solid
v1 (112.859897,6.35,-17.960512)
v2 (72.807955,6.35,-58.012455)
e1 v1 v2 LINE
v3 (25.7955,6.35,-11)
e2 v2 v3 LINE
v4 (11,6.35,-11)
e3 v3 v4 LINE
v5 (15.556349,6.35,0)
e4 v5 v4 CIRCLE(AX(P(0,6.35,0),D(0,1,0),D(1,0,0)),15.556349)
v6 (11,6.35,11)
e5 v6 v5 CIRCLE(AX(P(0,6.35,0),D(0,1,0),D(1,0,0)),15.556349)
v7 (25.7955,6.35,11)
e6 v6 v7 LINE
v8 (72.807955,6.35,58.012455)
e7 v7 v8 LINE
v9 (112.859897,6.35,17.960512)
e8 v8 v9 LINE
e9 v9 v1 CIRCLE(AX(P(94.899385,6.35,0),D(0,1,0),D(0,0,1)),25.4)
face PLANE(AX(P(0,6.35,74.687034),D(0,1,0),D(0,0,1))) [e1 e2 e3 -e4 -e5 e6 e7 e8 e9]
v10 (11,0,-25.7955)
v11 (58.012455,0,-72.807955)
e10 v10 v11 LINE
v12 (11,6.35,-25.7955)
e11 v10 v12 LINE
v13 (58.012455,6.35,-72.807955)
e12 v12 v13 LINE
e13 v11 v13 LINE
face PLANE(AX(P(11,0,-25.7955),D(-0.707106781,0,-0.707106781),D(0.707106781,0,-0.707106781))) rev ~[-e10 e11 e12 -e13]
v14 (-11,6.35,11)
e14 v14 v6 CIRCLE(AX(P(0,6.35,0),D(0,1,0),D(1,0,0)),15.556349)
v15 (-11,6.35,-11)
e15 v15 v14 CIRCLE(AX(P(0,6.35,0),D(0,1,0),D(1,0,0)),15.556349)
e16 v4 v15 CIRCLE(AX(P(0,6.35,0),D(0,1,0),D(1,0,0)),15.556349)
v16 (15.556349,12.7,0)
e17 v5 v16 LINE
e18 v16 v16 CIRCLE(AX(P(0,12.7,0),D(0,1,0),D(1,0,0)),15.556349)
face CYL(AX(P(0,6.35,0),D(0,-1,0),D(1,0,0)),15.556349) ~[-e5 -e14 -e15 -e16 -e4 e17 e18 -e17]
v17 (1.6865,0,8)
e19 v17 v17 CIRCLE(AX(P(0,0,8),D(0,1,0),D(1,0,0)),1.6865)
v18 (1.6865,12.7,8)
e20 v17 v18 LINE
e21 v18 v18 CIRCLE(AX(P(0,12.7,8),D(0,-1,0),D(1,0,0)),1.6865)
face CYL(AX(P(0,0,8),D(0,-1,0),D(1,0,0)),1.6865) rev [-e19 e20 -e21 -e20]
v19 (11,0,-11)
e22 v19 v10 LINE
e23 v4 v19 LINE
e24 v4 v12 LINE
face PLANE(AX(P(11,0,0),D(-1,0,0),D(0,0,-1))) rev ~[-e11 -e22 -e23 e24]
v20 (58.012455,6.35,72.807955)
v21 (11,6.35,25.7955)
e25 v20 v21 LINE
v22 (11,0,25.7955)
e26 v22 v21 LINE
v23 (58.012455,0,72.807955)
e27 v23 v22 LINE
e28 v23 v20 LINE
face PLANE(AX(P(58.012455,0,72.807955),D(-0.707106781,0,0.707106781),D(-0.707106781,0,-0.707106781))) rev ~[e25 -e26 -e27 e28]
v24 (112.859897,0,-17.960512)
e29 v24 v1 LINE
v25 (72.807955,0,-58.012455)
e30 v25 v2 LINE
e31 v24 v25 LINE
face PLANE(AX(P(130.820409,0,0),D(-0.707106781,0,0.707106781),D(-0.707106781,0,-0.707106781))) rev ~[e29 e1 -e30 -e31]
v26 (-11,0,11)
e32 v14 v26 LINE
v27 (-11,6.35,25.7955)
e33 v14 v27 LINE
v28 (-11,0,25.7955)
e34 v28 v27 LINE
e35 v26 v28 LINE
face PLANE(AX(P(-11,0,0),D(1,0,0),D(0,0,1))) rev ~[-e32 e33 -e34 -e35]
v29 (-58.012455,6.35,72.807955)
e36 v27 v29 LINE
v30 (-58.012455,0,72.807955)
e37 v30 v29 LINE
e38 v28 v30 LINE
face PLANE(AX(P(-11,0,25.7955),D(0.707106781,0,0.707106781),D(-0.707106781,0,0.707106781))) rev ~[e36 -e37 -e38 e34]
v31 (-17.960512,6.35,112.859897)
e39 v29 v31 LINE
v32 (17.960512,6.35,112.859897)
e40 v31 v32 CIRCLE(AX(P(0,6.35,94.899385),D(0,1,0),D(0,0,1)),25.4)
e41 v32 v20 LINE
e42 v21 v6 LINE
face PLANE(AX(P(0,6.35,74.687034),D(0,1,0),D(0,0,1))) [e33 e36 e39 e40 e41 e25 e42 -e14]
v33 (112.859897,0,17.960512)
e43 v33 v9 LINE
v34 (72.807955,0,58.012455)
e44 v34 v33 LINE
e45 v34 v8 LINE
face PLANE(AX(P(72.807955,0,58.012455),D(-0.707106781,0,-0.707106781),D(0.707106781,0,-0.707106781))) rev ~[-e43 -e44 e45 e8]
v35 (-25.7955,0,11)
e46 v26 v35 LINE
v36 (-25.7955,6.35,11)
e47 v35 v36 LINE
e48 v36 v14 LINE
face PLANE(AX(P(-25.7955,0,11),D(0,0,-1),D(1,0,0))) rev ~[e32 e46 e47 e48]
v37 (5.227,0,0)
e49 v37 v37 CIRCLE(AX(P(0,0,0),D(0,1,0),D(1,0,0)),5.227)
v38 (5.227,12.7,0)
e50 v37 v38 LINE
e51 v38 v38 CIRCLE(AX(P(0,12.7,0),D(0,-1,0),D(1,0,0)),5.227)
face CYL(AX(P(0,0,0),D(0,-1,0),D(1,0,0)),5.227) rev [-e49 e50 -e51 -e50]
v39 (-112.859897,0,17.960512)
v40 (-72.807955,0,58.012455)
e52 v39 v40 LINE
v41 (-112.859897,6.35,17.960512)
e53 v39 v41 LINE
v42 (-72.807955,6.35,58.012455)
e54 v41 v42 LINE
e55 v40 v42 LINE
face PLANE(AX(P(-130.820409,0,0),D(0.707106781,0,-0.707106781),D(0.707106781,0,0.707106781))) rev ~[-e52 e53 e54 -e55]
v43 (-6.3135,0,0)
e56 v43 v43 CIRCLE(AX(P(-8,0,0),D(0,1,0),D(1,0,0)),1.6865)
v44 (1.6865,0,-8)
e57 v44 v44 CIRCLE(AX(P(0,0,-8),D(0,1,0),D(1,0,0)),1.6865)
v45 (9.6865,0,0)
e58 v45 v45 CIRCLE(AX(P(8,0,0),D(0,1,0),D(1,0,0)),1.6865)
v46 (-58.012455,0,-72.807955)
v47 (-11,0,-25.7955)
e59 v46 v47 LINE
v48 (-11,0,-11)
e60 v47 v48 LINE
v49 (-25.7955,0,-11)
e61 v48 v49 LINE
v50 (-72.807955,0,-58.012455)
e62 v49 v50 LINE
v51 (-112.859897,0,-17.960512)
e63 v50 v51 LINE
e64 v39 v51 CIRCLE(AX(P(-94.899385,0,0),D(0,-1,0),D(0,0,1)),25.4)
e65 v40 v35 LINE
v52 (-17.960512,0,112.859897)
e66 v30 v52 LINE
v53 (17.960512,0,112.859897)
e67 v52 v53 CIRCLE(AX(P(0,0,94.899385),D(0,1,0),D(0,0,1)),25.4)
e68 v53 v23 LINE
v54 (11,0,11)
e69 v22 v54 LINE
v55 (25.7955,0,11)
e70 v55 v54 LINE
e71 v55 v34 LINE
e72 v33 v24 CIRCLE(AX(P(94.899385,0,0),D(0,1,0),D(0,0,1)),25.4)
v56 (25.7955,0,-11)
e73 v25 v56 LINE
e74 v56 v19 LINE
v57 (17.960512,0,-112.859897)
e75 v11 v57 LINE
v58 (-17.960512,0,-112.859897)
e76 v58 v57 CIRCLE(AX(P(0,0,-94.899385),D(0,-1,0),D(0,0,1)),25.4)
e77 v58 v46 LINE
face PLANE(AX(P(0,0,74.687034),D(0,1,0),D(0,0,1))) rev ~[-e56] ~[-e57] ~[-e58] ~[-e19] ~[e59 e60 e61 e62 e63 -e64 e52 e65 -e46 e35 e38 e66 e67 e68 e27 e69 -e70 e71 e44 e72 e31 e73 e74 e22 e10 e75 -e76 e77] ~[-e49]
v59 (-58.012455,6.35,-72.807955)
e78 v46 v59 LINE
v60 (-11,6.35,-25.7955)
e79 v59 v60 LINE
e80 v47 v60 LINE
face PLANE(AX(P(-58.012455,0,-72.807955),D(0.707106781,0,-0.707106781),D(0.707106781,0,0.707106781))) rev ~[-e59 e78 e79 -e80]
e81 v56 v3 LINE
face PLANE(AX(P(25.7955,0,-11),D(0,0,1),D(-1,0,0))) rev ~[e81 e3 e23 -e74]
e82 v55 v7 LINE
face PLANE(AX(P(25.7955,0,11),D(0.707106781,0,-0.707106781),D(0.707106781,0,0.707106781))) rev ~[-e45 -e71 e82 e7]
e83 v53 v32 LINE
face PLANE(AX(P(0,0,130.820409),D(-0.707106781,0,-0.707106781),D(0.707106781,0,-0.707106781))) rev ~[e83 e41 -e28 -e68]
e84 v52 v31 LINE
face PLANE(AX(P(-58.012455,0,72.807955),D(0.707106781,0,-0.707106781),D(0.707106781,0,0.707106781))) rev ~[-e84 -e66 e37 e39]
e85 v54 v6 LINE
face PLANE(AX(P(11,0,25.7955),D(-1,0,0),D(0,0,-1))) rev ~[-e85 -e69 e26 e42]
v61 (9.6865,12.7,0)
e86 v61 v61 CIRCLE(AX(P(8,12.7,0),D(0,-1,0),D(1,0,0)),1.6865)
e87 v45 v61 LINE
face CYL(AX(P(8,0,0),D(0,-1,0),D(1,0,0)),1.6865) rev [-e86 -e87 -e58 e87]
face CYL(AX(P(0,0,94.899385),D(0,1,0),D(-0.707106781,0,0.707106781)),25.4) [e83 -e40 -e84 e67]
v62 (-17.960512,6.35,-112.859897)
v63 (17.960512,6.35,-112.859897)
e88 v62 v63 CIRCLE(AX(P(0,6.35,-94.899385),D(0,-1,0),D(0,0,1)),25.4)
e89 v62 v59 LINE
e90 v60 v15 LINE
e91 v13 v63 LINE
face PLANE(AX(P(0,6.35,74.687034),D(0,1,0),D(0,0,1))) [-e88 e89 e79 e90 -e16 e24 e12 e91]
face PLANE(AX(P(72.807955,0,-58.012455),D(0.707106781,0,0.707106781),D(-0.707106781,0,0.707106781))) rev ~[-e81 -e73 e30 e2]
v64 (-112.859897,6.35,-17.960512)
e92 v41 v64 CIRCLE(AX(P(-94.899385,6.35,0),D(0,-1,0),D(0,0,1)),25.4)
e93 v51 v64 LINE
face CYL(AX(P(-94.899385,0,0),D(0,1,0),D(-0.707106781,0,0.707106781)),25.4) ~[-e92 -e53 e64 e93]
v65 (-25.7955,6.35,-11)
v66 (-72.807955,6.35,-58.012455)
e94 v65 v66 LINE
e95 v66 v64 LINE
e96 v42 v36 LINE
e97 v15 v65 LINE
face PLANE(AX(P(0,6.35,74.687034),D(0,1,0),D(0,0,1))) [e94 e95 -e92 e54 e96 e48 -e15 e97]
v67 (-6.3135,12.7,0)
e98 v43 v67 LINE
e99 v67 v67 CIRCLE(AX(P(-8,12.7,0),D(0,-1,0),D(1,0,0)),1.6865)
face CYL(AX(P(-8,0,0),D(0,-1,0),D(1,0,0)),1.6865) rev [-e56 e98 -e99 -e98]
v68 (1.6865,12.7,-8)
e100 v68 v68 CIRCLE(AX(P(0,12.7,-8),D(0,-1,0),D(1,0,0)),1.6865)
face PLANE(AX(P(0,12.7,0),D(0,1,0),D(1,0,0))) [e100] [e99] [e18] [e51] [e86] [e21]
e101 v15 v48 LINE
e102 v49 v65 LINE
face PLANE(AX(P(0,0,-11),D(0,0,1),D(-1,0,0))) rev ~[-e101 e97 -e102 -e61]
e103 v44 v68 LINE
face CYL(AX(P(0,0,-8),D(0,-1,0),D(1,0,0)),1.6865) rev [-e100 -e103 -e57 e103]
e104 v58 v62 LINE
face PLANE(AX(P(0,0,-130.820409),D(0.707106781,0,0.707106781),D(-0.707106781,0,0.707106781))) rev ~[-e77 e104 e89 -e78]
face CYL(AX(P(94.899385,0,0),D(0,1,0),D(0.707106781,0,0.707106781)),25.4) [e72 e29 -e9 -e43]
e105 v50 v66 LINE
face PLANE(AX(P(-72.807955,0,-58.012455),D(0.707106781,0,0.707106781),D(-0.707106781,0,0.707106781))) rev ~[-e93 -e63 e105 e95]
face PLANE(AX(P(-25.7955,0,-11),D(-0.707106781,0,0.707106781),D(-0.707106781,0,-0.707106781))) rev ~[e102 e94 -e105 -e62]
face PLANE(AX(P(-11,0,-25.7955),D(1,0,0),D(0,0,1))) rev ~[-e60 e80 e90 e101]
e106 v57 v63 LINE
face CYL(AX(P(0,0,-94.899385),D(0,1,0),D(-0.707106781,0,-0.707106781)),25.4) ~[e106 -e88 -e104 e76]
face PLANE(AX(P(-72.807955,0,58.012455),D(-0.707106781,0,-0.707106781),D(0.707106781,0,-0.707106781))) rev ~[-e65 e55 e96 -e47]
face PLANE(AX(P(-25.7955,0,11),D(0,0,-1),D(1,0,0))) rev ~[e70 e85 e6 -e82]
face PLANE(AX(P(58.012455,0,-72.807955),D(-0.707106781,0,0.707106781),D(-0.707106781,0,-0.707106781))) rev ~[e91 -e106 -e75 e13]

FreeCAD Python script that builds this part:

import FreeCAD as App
import Part
import Sketcher
Q = App.Units.Quantity


def edges_at(feature, points):
    """Names of the edges that pass closest to the given points."""
    edges = feature.Shape.Edges
    near = lambda p: min(range(len(edges)), key=lambda i: edges[i].distToShape(Part.Vertex(*p))[0])
    return sorted({f"Edge{near(p) + 1}" for p in points})

doc = App.newDocument("Part")
params = doc.addObject("Spreadsheet::Sheet", "Params")
for row, (alias, value) in enumerate([
    ("sketch1_length", "3.23 in"),
    ("pad1_length", "0.25 in"),
    ("fillet_radius", "1 in"),
    ("fillet2_radius", "1 in"),
    ("pad2_length", "0.25 in"),
], start=1):
    params.set(f"A{row}", alias)
    params.set(f"B{row}", "=" + value)
    params.setAlias(f"B{row}", alias)

body = doc.addObject("PartDesign::Body", "Body")

# Sketch on XZ plane
sketch1 = doc.addObject("Sketcher::SketchObject", "Sketch")
body.addObject(sketch1)
sketch1.AttachmentSupport = (doc.XZ_Plane, [""])
sketch1.MapMode = "FlatFace"
sketch1.addGeometry([
    Part.LineSegment(App.Vector(73, 58, 0), App.Vector(131, 0, 0)),  # 0
    Part.LineSegment(App.Vector(131, 0, 0), App.Vector(73, -58, 0)),  # 1
    Part.LineSegment(App.Vector(73, -58, 0), App.Vector(26, -11, 0)),  # 2
    Part.LineSegment(App.Vector(26, -11, 0), App.Vector(0, -11, 0)),  # 3
    Part.LineSegment(App.Vector(0, -11, 0), App.Vector(0, 11, 0)),  # 4
    Part.LineSegment(App.Vector(0, 11, 0), App.Vector(26, 11, 0)),  # 5
    Part.LineSegment(App.Vector(26, 11, 0), App.Vector(73, 58, 0)),  # 6
], False)
sketch1.addConstraint([
    Sketcher.Constraint("Coincident", 0, 2, 1, 1),
    Sketcher.Constraint("Coincident", 1, 2, 2, 1),
    Sketcher.Constraint("Coincident", 2, 2, 3, 1),
    Sketcher.Constraint("Coincident", 3, 2, 4, 1),
    Sketcher.Constraint("Coincident", 4, 2, 5, 1),
    Sketcher.Constraint("Coincident", 5, 2, 6, 1),
    Sketcher.Constraint("Coincident", 6, 2, 0, 1),
    Sketcher.Constraint("Horizontal", 3),
    Sketcher.Constraint("Vertical", 4),
    Sketcher.Constraint("Horizontal", 5),
    Sketcher.Constraint("Symmetric", 3, 2, 4, 2, -1, 1),
    Sketcher.Constraint("Symmetric", 1, 2, 6, 2, -1),
    Sketcher.Constraint("PointOnObject", 0, 2, -1),
    Sketcher.Constraint("Perpendicular", 0, 1),
    Sketcher.Constraint("Perpendicular", 1, 2),
    Sketcher.Constraint("Perpendicular", 2, 6),
    Sketcher.Constraint("Distance", 0, Q("3.23 in")),
    Sketcher.Constraint("DistanceX", 3, 2, 3, 1, 25.7955),
    Sketcher.Constraint("DistanceY", 4, 1, 4, 2, 22.0),
])
sketch1.setExpression("Constraints[16]", "Params.sketch1_length")
pad1 = doc.addObject("PartDesign::Pad", "Pad")
body.addObject(pad1)
pad1.Profile = sketch1
pad1.setExpression("Length", "Params.pad1_length")
pad1.Reversed = True
doc.recompute()

fillet = doc.addObject("PartDesign::Fillet", "Fillet")
body.addObject(fillet)
fillet.Base = (pad1, edges_at(pad1, [(130.82, 3.175, 0)]))
fillet.setExpression("Radius", "Params.fillet_radius")
doc.recompute()

polarpattern = doc.addObject("PartDesign::PolarPattern", "PolarPattern")
body.addObject(polarpattern)
polarpattern.Originals = [pad1]
polarpattern.Axis = (doc.Y_Axis, [""])
polarpattern.Angle = 360
polarpattern.Occurrences = 4
body.Tip = polarpattern
doc.recompute()

fillet2 = doc.addObject("PartDesign::Fillet", "Fillet001")
body.addObject(fillet2)
fillet2.Base = (polarpattern, edges_at(polarpattern, [(0, 3.175, -130.82), (-130.82, 3.175, 0), (0, 3.175, 130.82)]))
fillet2.setExpression("Radius", "Params.fillet2_radius")

# Sketch on XZ plane
sketch2 = doc.addObject("Sketcher::SketchObject", "Sketch001")
body.addObject(sketch2)
sketch2.AttachmentSupport = (doc.XZ_Plane, [""])
sketch2.MapMode = "FlatFace"
sketch2.AttachmentOffset = App.Placement(App.Vector(0, 0, -0.25 * 25.4), App.Rotation())
sketch2.addGeometry(Part.Circle(App.Vector(0, 0, 0), App.Vector(0, 0, 1), 16), False)
sketch2.addConstraint([
    Sketcher.Constraint("Coincident", 0, 3, -1, 1),
    Sketcher.Constraint("Diameter", 0, 31.112698),
])
pad2 = doc.addObject("PartDesign::Pad", "Pad001")
body.addObject(pad2)
pad2.Profile = sketch2
pad2.setExpression("Length", "Params.pad2_length")
pad2.Reversed = True

# Sketch on XZ plane
sketch3 = doc.addObject("Sketcher::SketchObject", "Sketch002")
body.addObject(sketch3)
sketch3.AttachmentSupport = (doc.XZ_Plane, [""])
sketch3.MapMode = "FlatFace"
sketch3.addGeometry([
    Part.Circle(App.Vector(0, 0, 0), App.Vector(0, 0, 1), 5.2),  # 0
    Part.Circle(App.Vector(8, 0, 0), App.Vector(0, 0, 1), 1.7),  # 1
    Part.Circle(App.Vector(0, 8, 0), App.Vector(0, 0, 1), 1.7),  # 2
    Part.Circle(App.Vector(-8, 0, 0), App.Vector(0, 0, 1), 1.7),  # 3
    Part.Circle(App.Vector(0, -8, 0), App.Vector(0, 0, 1), 1.7),  # 4
], False)
sketch3.addConstraint([
    Sketcher.Constraint("Coincident", 0, 3, -1, 1),
    Sketcher.Constraint("Equal", 1, 2),
    Sketcher.Constraint("Equal", 2, 3),
    Sketcher.Constraint("Equal", 3, 4),
    Sketcher.Constraint("Symmetric", 1, 3, 3, 3, -1, 1),
    Sketcher.Constraint("Symmetric", 2, 3, 4, 3, -1, 1),
    Sketcher.Constraint("PointOnObject", 1, 3, -1),
    Sketcher.Constraint("PointOnObject", 2, 3, -2),
    Sketcher.Constraint("Diameter", 0, 10.454),
    Sketcher.Constraint("Diameter", 1, 3.373),
    Sketcher.Constraint("DistanceX", -1, 1, 1, 3, 8.0),
    Sketcher.Constraint("DistanceY", -1, 1, 2, 3, 8.0),
])
pocket1 = doc.addObject("PartDesign::Pocket", "Pocket")
body.addObject(pocket1)
pocket1.Profile = sketch3
pocket1.Type = "ThroughAll"

doc.recompute()
